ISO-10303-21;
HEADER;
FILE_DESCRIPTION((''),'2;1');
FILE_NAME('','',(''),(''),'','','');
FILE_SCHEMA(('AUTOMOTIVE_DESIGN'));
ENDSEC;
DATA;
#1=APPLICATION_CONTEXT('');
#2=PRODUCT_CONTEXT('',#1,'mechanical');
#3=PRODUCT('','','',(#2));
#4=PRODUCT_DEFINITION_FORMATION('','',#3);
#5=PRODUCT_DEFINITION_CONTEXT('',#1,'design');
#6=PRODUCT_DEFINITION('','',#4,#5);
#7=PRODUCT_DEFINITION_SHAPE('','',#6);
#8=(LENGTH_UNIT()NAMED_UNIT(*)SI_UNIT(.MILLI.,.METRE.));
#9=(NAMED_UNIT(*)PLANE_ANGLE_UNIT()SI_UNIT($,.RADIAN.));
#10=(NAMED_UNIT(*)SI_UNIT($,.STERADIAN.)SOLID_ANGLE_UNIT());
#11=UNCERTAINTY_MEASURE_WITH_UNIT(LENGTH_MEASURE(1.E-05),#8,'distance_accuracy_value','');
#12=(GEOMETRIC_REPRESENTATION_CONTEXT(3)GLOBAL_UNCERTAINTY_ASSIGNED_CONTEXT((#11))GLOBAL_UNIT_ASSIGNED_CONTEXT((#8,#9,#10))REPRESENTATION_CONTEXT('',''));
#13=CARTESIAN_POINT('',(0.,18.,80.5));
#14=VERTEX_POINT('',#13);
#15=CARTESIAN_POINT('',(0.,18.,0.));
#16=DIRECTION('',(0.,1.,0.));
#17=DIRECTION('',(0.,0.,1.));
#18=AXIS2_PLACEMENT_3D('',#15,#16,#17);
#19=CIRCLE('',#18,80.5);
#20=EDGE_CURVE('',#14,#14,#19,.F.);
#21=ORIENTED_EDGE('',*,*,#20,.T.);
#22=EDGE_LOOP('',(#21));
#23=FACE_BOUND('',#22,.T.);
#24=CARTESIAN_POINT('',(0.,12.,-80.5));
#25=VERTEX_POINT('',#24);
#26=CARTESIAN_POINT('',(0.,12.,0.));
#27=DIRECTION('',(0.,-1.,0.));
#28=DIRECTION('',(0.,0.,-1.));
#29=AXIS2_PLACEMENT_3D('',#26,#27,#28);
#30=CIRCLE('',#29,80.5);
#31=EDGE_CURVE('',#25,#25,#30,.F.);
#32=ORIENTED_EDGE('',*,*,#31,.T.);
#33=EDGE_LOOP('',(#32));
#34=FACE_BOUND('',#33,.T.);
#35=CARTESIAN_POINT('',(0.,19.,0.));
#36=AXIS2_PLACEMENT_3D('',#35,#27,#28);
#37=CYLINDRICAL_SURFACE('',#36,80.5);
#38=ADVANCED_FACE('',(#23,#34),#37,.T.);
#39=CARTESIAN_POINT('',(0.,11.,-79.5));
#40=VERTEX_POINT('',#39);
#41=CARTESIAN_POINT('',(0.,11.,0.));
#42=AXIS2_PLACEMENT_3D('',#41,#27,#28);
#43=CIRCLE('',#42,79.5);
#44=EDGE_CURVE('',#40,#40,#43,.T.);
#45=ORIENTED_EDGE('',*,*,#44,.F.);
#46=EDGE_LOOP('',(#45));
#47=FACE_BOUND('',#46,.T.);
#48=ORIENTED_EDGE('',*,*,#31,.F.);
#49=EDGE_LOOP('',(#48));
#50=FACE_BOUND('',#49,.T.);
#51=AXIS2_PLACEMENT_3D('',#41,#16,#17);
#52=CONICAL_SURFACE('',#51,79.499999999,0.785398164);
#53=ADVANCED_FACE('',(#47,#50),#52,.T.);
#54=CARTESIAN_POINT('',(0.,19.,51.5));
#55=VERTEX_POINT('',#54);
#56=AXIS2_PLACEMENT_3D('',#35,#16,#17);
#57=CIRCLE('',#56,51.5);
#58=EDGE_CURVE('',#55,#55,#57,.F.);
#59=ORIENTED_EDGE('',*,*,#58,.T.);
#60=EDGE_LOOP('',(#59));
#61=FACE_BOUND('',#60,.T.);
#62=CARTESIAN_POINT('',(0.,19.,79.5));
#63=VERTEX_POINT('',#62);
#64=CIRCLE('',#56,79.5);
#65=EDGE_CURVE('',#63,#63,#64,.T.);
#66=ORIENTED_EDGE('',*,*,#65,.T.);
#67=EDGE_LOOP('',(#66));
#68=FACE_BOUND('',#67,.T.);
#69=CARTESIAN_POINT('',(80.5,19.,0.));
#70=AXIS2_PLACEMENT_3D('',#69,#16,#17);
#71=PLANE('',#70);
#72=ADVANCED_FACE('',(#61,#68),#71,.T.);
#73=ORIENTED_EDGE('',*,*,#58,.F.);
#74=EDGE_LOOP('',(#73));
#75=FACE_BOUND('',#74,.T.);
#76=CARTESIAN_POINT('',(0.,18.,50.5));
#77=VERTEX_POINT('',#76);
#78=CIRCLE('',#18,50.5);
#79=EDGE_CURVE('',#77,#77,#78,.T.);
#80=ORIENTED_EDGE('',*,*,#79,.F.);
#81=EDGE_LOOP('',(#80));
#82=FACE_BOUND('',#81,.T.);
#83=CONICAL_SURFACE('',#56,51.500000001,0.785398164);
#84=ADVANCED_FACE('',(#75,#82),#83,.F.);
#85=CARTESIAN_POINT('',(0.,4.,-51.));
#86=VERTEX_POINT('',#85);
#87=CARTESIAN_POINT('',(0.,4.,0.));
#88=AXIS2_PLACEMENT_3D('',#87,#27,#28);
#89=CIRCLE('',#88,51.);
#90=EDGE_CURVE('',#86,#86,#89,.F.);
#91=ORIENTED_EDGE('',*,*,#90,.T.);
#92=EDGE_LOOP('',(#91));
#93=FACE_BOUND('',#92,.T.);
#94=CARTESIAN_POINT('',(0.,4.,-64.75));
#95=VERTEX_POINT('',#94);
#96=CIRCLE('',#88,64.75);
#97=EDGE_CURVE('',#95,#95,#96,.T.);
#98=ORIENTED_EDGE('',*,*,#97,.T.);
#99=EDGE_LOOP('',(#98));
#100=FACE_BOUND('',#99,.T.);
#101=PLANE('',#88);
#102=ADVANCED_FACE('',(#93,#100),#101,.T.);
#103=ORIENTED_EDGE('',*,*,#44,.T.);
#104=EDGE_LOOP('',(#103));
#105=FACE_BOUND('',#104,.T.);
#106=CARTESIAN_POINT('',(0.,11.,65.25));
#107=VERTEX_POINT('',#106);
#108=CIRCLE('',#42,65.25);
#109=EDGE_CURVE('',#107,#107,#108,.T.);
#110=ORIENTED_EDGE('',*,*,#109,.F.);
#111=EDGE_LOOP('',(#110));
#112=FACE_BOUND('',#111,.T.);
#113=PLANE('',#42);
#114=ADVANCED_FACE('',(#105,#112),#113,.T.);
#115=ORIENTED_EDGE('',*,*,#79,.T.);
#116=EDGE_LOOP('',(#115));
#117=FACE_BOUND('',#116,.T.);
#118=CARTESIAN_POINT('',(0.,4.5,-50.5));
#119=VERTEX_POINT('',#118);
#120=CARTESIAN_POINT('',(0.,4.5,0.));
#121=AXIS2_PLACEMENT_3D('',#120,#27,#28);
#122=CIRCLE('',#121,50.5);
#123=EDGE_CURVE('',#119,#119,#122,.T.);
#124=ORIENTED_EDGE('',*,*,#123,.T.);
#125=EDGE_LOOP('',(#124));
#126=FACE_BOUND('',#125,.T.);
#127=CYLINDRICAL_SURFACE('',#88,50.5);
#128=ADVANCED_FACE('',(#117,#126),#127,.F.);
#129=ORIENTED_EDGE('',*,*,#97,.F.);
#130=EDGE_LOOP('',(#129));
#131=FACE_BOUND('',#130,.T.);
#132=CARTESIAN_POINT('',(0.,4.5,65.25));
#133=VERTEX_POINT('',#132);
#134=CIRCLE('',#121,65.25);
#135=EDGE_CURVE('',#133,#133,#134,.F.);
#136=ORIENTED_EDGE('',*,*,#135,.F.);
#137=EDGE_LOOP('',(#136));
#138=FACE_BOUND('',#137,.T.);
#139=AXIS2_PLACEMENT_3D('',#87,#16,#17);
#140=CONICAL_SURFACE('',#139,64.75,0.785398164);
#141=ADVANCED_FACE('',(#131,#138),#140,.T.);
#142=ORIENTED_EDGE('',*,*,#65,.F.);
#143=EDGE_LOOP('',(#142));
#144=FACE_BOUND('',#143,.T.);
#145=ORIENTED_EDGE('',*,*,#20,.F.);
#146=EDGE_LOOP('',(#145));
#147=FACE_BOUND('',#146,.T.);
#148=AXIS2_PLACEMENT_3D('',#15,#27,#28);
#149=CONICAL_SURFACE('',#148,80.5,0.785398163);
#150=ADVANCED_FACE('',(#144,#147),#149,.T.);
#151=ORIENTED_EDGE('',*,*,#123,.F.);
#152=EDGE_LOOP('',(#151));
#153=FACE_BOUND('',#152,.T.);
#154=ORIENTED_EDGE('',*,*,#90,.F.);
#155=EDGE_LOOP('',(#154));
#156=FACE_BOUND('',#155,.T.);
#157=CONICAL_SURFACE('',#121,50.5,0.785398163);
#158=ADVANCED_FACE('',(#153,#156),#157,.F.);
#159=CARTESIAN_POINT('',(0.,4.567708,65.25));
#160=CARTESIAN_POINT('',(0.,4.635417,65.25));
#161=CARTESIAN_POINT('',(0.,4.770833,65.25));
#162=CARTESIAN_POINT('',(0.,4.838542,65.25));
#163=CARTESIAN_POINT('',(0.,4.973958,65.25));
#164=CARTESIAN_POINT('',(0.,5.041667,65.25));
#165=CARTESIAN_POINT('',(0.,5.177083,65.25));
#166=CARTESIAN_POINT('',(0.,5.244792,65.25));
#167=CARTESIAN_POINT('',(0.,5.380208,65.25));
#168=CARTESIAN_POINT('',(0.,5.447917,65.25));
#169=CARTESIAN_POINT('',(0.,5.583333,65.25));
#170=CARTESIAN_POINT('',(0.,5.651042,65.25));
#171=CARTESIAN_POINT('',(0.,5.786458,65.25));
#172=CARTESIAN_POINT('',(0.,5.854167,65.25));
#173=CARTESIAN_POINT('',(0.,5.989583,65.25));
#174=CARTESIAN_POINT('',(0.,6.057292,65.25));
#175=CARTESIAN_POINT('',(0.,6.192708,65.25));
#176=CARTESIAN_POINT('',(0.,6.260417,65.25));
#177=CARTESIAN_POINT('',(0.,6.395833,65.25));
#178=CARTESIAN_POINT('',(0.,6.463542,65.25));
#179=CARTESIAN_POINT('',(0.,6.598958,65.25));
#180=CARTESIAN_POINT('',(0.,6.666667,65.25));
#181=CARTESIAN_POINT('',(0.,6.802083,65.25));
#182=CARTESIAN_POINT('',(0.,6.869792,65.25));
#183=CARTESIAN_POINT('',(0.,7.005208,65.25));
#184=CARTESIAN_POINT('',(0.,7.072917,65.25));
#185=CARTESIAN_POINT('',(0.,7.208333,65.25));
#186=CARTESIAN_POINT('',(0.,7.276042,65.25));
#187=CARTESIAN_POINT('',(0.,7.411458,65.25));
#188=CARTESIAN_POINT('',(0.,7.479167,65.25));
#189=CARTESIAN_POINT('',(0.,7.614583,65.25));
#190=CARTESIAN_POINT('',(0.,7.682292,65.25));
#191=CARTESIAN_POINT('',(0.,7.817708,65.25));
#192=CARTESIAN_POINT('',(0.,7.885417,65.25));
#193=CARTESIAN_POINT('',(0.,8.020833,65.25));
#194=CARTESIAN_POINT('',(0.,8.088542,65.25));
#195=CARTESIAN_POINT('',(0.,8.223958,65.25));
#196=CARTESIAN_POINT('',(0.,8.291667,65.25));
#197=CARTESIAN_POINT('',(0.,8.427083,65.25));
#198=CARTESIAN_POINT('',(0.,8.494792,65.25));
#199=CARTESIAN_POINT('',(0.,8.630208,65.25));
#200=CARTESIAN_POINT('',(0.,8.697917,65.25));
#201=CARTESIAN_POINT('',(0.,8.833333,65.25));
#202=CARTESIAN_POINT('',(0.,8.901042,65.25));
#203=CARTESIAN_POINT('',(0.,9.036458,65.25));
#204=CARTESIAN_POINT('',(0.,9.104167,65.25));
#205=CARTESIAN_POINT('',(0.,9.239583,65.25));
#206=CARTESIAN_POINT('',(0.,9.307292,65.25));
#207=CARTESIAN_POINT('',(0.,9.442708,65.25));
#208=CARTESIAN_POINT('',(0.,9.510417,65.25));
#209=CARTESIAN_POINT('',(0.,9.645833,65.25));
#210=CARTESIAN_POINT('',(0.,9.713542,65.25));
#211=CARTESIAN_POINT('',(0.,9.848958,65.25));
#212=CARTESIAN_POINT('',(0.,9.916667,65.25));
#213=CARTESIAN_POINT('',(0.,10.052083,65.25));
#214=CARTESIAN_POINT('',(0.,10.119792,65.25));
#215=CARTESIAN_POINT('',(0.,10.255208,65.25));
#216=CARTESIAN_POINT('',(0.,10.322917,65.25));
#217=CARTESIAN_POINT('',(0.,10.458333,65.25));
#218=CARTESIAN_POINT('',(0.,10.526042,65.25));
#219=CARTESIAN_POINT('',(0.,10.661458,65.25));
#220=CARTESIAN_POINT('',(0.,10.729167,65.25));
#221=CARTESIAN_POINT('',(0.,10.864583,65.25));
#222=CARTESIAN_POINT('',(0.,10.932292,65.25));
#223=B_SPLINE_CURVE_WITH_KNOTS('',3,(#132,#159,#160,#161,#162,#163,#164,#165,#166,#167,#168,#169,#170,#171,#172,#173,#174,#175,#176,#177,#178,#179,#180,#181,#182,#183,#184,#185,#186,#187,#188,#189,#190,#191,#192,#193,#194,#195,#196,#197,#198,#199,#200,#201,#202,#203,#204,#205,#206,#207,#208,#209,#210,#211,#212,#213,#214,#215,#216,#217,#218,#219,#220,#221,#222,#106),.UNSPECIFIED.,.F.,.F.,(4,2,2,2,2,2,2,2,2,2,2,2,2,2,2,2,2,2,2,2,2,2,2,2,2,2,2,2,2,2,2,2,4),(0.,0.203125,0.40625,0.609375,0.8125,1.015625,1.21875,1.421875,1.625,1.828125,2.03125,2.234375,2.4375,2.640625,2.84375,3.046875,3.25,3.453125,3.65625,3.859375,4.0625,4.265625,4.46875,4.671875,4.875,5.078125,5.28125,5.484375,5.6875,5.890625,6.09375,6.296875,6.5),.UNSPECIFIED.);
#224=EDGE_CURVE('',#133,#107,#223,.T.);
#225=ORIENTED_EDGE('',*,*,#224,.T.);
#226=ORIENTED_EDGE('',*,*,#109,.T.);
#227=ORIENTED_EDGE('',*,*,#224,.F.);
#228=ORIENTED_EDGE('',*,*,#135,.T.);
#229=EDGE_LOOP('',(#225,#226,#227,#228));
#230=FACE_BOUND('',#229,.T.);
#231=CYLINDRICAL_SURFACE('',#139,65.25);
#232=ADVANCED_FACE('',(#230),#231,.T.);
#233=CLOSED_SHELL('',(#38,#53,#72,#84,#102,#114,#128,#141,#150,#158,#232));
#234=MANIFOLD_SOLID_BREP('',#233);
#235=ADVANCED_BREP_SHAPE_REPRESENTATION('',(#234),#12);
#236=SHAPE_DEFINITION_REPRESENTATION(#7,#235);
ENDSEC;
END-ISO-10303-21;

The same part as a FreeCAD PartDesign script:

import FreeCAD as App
import Part
import Sketcher

V = App.Vector


def edges_at(feature, points):
    """Names of the edges that pass closest to the given points."""
    edges = feature.Shape.Edges
    near = lambda p: min(range(len(edges)), key=lambda i: edges[i].distToShape(Part.Vertex(*p))[0])
    return sorted({f"Edge{near(p) + 1}" for p in points})

doc = App.newDocument("Part")
params = doc.addObject("Spreadsheet::Sheet", "Params")
for row, (alias, value) in enumerate([
    ("sketch1_height", "8 mm"),
    ("sketch1_width", "80.5 mm"),
    ("revolution_angle", "360 deg"),
    ("sketch2_diameter", "130.5 mm"),
    ("pad1_length", "7 mm"),
    ("sketch3_diameter", "101 mm"),
    ("hole_diameter", "101 mm"),
    ("chamfer_size", "0.5 mm"),
    ("chamfer2_size", "1 mm"),
    ("chamfer2_size2", "1 mm"),
], start=1):
    params.set(f"A{row}", alias)
    params.set(f"B{row}", "=" + value)
    params.setAlias(f"B{row}", alias)

body = doc.addObject("PartDesign::Body", "Body")

# Sketch on XY plane
sketch1 = body.newObject("Sketcher::SketchObject", "Sketch")
sketch1.AttachmentSupport = (doc.getObject("XY_Plane"), [""])
sketch1.MapMode = "FlatFace"
sketch1.addGeometry([
    Part.LineSegment(V(0, 19, 0), V(0, 11, 0)),
    Part.LineSegment(V(0, 11, 0), V(80, 11, 0)),
    Part.LineSegment(V(80, 11, 0), V(80, 19, 0)),
    Part.LineSegment(V(80, 19, 0), V(0, 19, 0)),
], False)
sketch1.addConstraint([
    Sketcher.Constraint("Coincident", 0, 2, 1, 1),
    Sketcher.Constraint("Coincident", 1, 2, 2, 1),
    Sketcher.Constraint("Coincident", 2, 2, 3, 1),
    Sketcher.Constraint("Coincident", 3, 2, 0, 1),
    Sketcher.Constraint("Vertical", 0),
    Sketcher.Constraint("Horizontal", 1),
    Sketcher.Constraint("Vertical", 2),
    Sketcher.Constraint("Horizontal", 3),
    Sketcher.Constraint("PointOnObject", 0, 2, -2),
    Sketcher.Constraint("DistanceY", 0, 2, 0, 1, 8.0),
    Sketcher.Constraint("DistanceX", 1, 1, 1, 2, 80.5),
    Sketcher.Constraint("DistanceY", -1, 1, 0, 2, 11.0),
])
sketch1.setExpression("Constraints[9]", "Params.sketch1_height")
sketch1.setExpression("Constraints[10]", "Params.sketch1_width")
revolution = body.newObject("PartDesign::Revolution", "Revolution")
revolution.Profile = sketch1
revolution.ReferenceAxis = (sketch1, ["V_Axis"])
revolution.setExpression("Angle", "Params.revolution_angle")

# Sketch on XZ plane
sketch2 = body.newObject("Sketcher::SketchObject", "Sketch001")
sketch2.AttachmentSupport = (doc.getObject("XZ_Plane"), [""])
sketch2.MapMode = "FlatFace"
sketch2.AttachmentOffset = App.Placement(V(0, 0, -11), App.Rotation())
sketch2.addGeometry(Part.Circle(V(0, 0, 0), V(0, 0, 1), 65), False)
sketch2.addConstraint([
    Sketcher.Constraint("Coincident", 0, 3, -1, 1),
    Sketcher.Constraint("Diameter", 0, 130.5),
])
sketch2.setExpression("Constraints[1]", "Params.sketch2_diameter")
pad1 = body.newObject("PartDesign::Pad", "Pad")
pad1.Profile = sketch2
pad1.setExpression("Length", "Params.pad1_length")

# Sketch on XZ plane
sketch3 = body.newObject("Sketcher::SketchObject", "Sketch002")
sketch3.AttachmentSupport = (doc.getObject("XZ_Plane"), [""])
sketch3.MapMode = "FlatFace"
sketch3.AttachmentOffset = App.Placement(V(0, 0, -4), App.Rotation())
sketch3.addGeometry(Part.Circle(V(0, 0, 0), V(0, 0, 1), 50), False)
sketch3.addConstraint([
    Sketcher.Constraint("Coincident", 0, 3, -1, 1),
    Sketcher.Constraint("Diameter", 0, 101.0),
])
sketch3.setExpression("Constraints[1]", "Params.sketch3_diameter")
doc.recompute()
hole = body.newObject("PartDesign::Hole", "Hole")
hole.Profile = sketch3
hole.ThreadType = "None"
hole.setExpression("Diameter", "Params.hole_diameter")
hole.DepthType = "ThroughAll"
doc.recompute()

chamfer = body.newObject("PartDesign::Chamfer", "Chamfer")
chamfer.Base = (hole, edges_at(hole, [(0, 4, -65.25), (-50.5, 4, 0)]))
chamfer.setExpression("Size", "Params.chamfer_size")
doc.recompute()

chamfer2 = body.newObject("PartDesign::Chamfer", "Chamfer001")
chamfer2.Base = (chamfer, edges_at(chamfer, [(-50.5, 19, 0), (0, 11, 80.5), (0, 19, 80.5)]))
chamfer2.ChamferType = "Two distances"
chamfer2.setExpression("Size", "Params.chamfer2_size")
chamfer2.setExpression("Size2", "Params.chamfer2_size2")

doc.recompute()
